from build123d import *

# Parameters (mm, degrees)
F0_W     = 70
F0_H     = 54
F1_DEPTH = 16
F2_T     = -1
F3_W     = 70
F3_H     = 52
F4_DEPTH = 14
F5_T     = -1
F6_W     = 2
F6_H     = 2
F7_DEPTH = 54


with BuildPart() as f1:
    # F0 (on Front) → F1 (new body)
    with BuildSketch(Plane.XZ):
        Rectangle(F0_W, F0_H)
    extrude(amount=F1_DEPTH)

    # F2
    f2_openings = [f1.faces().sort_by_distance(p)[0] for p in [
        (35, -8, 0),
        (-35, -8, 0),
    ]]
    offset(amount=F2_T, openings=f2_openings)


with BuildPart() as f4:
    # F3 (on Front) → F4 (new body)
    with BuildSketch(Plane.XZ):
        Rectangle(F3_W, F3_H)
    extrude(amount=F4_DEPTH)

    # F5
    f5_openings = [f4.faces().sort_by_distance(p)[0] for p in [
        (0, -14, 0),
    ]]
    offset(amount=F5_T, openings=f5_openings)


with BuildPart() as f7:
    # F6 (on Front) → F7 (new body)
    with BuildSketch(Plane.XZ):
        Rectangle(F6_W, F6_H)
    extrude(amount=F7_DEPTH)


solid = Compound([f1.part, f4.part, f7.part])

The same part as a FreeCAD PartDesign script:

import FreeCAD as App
import Part
import Sketcher
Q = App.Units.Quantity


def faces_at(feature, points):
    """Names of the faces that lie closest to the given points."""
    faces = feature.Shape.Faces
    near = lambda p: min(range(len(faces)), key=lambda i: faces[i].distToShape(Part.Vertex(*p))[0])
    return sorted({f"Face{near(p) + 1}" for p in points})


def add_polygon(sketch, points):
    """Adds a closed chain of lines whose ends are joined by coincident constraints."""
    first, n = sketch.GeometryCount, len(points)
    for a, b in zip(points, points[1:] + points[:1]):
        sketch.addGeometry(Part.LineSegment(App.Vector(*a, 0), App.Vector(*b, 0)), False)
    for i in range(n):
        sketch.addConstraint(Sketcher.Constraint("Coincident", first + i, 2, first + (i + 1) % n, 1))

doc = App.newDocument("Part")
body = doc.addObject("PartDesign::Body", "Body")

# Sketch on XZ plane
sketch1 = doc.addObject("Sketcher::SketchObject", "Sketch")
body.addObject(sketch1)
sketch1.AttachmentSupport = (doc.XZ_Plane, [""])
sketch1.MapMode = "FlatFace"
add_polygon(sketch1, [(-35, 27), (-35, -27), (35, -27), (35, 27)])  # lines 0-3
sketch1.addConstraint(Sketcher.Constraint("Vertical", 0))
sketch1.addConstraint(Sketcher.Constraint("Horizontal", 1))
sketch1.addConstraint(Sketcher.Constraint("Vertical", 2))
sketch1.addConstraint(Sketcher.Constraint("Horizontal", 3))
sketch1.addConstraint(Sketcher.Constraint("Symmetric", 0, 2, 2, 2, -1, 1))
sketch1.addConstraint(Sketcher.Constraint("DistanceX", 1, 1, 1, 2, Q("70 mm")))
sketch1.addConstraint(Sketcher.Constraint("DistanceY", 0, 2, 0, 1, Q("54 mm")))
pad1 = doc.addObject("PartDesign::Pad", "Pad")
body.addObject(pad1)
pad1.Profile = sketch1
pad1.Length = 16
doc.recompute()

thickness = doc.addObject("PartDesign::Thickness", "Thickness")
body.addObject(thickness)
thickness.Base = (pad1, faces_at(pad1, [(35, -8, 0), (-35, -8, 0)]))
thickness.Value = 1
thickness.Reversed = True
thickness.Join = "Arc"
body2 = doc.addObject("PartDesign::Body", "Body001")

# Sketch on XZ plane
sketch2 = doc.addObject("Sketcher::SketchObject", "Sketch001")
body2.addObject(sketch2)
sketch2.AttachmentSupport = (doc.getObject("XZ_Plane001"), [""])
sketch2.MapMode = "FlatFace"
add_polygon(sketch2, [(-35, 26), (-35, -26), (35, -26), (35, 26)])  # lines 0-3
sketch2.addConstraint(Sketcher.Constraint("Vertical", 0))
sketch2.addConstraint(Sketcher.Constraint("Horizontal", 1))
sketch2.addConstraint(Sketcher.Constraint("Vertical", 2))
sketch2.addConstraint(Sketcher.Constraint("Horizontal", 3))
sketch2.addConstraint(Sketcher.Constraint("Symmetric", 0, 2, 2, 2, -1, 1))
sketch2.addConstraint(Sketcher.Constraint("DistanceX", 1, 1, 1, 2, Q("70 mm")))
sketch2.addConstraint(Sketcher.Constraint("DistanceY", 0, 2, 0, 1, Q("52 mm")))
pad2 = doc.addObject("PartDesign::Pad", "Pad001")
body2.addObject(pad2)
pad2.Profile = sketch2
pad2.Length = 14
doc.recompute()

thickness2 = doc.addObject("PartDesign::Thickness", "Thickness001")
body2.addObject(thickness2)
thickness2.Base = (pad2, faces_at(pad2, [(0, -14, 0)]))
thickness2.Value = 1
thickness2.Reversed = True
thickness2.Join = "Arc"
body3 = doc.addObject("PartDesign::Body", "Body002")

# Sketch on XZ plane
sketch3 = doc.addObject("Sketcher::SketchObject", "Sketch002")
body3.addObject(sketch3)
sketch3.AttachmentSupport = (doc.getObject("XZ_Plane002"), [""])
sketch3.MapMode = "FlatFace"
add_polygon(sketch3, [(-1, 1), (-1, -1), (1, -1), (1, 1)])  # lines 0-3
sketch3.addConstraint(Sketcher.Constraint("Vertical", 0))
sketch3.addConstraint(Sketcher.Constraint("Horizontal", 1))
sketch3.addConstraint(Sketcher.Constraint("Vertical", 2))
sketch3.addConstraint(Sketcher.Constraint("Horizontal", 3))
sketch3.addConstraint(Sketcher.Constraint("Symmetric", 0, 2, 2, 2, -1, 1))
sketch3.addConstraint(Sketcher.Constraint("Equal", 3, 0))
sketch3.addConstraint(Sketcher.Constraint("DistanceX", 1, 1, 1, 2, Q("2 mm")))
pad3 = doc.addObject("PartDesign::Pad", "Pad002")
body3.addObject(pad3)
pad3.Profile = sketch3
pad3.Length = 54

doc.recompute()
